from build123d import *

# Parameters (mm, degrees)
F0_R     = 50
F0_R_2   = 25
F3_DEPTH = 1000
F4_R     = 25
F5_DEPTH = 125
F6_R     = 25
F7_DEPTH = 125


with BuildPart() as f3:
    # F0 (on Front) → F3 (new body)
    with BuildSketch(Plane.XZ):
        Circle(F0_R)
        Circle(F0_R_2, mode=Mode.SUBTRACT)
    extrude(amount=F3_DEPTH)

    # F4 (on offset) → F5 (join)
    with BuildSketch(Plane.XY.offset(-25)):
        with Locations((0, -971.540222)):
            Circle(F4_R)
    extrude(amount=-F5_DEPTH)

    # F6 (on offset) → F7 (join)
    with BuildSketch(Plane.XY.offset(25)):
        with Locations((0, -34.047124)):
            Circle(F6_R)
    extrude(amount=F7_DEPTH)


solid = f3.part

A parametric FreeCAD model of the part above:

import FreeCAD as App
import Part
import Sketcher
Q = App.Units.Quantity

doc = App.newDocument("Part")
body = doc.addObject("PartDesign::Body", "Body")

sketch1 = doc.addObject("Sketcher::SketchObject", "Sketch")
body.addObject(sketch1)
sketch1.AttachmentSupport = (doc.XZ_Plane, [""])
sketch1.MapMode = "FlatFace"
sketch1.addGeometry([
    Part.Circle(App.Vector(0, 0, 0), App.Vector(0, 0, 1), 50),
    Part.Circle(App.Vector(0, 0, 0), App.Vector(0, 0, 1), 25),
], False)
sketch1.addConstraint([
    Sketcher.Constraint("Coincident", 0, 3, -1, 1),
    Sketcher.Constraint("Coincident", 1, 3, -1, 1),
    Sketcher.Constraint("Diameter", 0, Q("100 mm")),
    Sketcher.Constraint("Diameter", 1, Q("50 mm")),
])
pad1 = doc.addObject("PartDesign::Pad", "Pad")
body.addObject(pad1)
pad1.Profile = sketch1
pad1.Length = 1000

sketch2 = doc.addObject("Sketcher::SketchObject", "Sketch001")
body.addObject(sketch2)
sketch2.AttachmentSupport = (doc.XY_Plane, [""])
sketch2.MapMode = "FlatFace"
sketch2.AttachmentOffset = App.Placement(App.Vector(0, 0, -25), App.Rotation())
sketch2.addGeometry(Part.Circle(App.Vector(0, -971.540222, 0), App.Vector(0, 0, 1), 25), False)
sketch2.addConstraint([
    Sketcher.Constraint("PointOnObject", 0, 3, -2),
    Sketcher.Constraint("Diameter", 0, Q("50 mm")),
    Sketcher.Constraint("DistanceY", 0, 3, -1, 1, Q("971.540222 mm")),
])
pad2 = doc.addObject("PartDesign::Pad", "Pad001")
body.addObject(pad2)
pad2.Profile = sketch2
pad2.Length = 125
pad2.Reversed = True

sketch3 = doc.addObject("Sketcher::SketchObject", "Sketch002")
body.addObject(sketch3)
sketch3.AttachmentSupport = (doc.XY_Plane, [""])
sketch3.MapMode = "FlatFace"
sketch3.AttachmentOffset = App.Placement(App.Vector(0, 0, 25), App.Rotation())
sketch3.addGeometry(Part.Circle(App.Vector(0, -34.047124, 0), App.Vector(0, 0, 1), 25), False)
sketch3.addConstraint([
    Sketcher.Constraint("PointOnObject", 0, 3, -2),
    Sketcher.Constraint("Diameter", 0, Q("50 mm")),
    Sketcher.Constraint("DistanceY", 0, 3, -1, 1, Q("34.047124 mm")),
])
pad3 = doc.addObject("PartDesign::Pad", "Pad002")
body.addObject(pad3)
pad3.Profile = sketch3
pad3.Length = 125

doc.recompute()
